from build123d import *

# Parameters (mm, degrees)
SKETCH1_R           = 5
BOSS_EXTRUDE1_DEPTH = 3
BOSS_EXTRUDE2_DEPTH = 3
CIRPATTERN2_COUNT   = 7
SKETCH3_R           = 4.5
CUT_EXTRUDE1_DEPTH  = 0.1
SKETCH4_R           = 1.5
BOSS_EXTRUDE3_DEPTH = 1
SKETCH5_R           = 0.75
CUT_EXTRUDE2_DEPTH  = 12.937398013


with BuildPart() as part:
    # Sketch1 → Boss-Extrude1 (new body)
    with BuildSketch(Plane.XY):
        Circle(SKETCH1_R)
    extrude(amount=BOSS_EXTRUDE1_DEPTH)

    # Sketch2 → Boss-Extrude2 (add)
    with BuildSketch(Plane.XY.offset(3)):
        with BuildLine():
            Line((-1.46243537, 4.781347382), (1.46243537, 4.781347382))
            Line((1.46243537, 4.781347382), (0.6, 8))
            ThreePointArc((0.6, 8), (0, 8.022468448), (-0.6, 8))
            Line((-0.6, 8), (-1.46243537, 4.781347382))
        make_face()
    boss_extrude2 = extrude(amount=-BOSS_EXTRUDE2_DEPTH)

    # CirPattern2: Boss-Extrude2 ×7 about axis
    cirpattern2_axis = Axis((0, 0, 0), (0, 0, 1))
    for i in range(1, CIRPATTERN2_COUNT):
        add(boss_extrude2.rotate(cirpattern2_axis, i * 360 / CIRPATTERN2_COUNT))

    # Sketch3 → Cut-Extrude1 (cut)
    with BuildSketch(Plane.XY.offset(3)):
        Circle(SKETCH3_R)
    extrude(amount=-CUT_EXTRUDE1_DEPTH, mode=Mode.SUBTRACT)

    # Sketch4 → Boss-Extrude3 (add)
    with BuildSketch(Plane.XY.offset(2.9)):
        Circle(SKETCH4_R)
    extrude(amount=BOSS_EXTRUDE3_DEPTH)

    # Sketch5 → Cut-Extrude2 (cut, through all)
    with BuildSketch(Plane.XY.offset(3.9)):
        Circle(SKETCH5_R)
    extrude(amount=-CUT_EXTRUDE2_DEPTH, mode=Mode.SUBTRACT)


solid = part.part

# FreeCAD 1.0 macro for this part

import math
import FreeCAD as App
import Part
import Sketcher
from FreeCAD import Vector
Q = App.Units.Quantity

doc = App.newDocument("Part")
params = doc.addObject("Spreadsheet::Sheet", "Params")
for row, (alias, value) in enumerate([
    ("sketch1_diameter", "10 mm"),
    ("pad1_length", "3 mm"),
    ("pad2_length", "3 mm"),
    ("sketch3_diameter", "9 mm"),
    ("pocket1_length", "0.1 mm"),
    ("sketch4_diameter", "3 mm"),
    ("pad3_length", "1 mm"),
    ("sketch5_diameter", "1.5 mm"),
], start=1):
    params.set(f"A{row}", alias)
    params.set(f"B{row}", "=" + value)
    params.setAlias(f"B{row}", alias)

body = doc.addObject("PartDesign::Body", "Body")

sketch1 = doc.addObject("Sketcher::SketchObject", "Sketch")
body.addObject(sketch1)
sketch1.AttachmentSupport = (doc.XY_Plane, [""])
sketch1.MapMode = "FlatFace"
sketch1.addGeometry(Part.Circle(Vector(0, 0, 0), Vector(0, 0, 1), 5), False)
sketch1.addConstraint(Sketcher.Constraint("Coincident", 0, 3, -1, 1))
sketch1.addConstraint(Sketcher.Constraint("Diameter", 0, 10.0))
sketch1.setExpression("Constraints[1]", "Params.sketch1_diameter")
pad1 = doc.addObject("PartDesign::Pad", "Pad")
body.addObject(pad1)
pad1.Profile = sketch1
pad1.setExpression("Length", "Params.pad1_length")

sketch2 = doc.addObject("Sketcher::SketchObject", "Sketch001")
body.addObject(sketch2)
sketch2.AttachmentSupport = (doc.XY_Plane, [""])
sketch2.MapMode = "FlatFace"
sketch2.AttachmentOffset = App.Placement(Vector(0, 0, 3), App.Rotation())
sketch2.addGeometry(Part.LineSegment(Vector(-1.5, 4.8, 0), Vector(1.5, 4.8, 0)), False)
sketch2.addGeometry(Part.LineSegment(Vector(1.5, 4.8, 0), Vector(0.6, 8, 0)), False)
sketch2.addGeometry(Part.ArcOfCircle(Part.Circle(Vector(0, 0, 0), Vector(0, 0, 1), 8), math.radians(85.71), math.radians(94.29)), False)
sketch2.addGeometry(Part.LineSegment(Vector(-0.6, 8, 0), Vector(-1.5, 4.8, 0)), False)
sketch2.addConstraint(Sketcher.Constraint("Coincident", 0, 2, 1, 1))
sketch2.addConstraint(Sketcher.Constraint("Coincident", 1, 2, 2, 1))
sketch2.addConstraint(Sketcher.Constraint("Coincident", 2, 2, 3, 1))
sketch2.addConstraint(Sketcher.Constraint("Coincident", 3, 2, 0, 1))
sketch2.addConstraint(Sketcher.Constraint("Horizontal", 0))
sketch2.addConstraint(Sketcher.Constraint("Coincident", 2, 3, -1, 1))
sketch2.addConstraint(Sketcher.Constraint("Horizontal", 1, 2, 2, 2))
sketch2.addConstraint(Sketcher.Constraint("Equal", 1, 3))
sketch2.addConstraint(Sketcher.Constraint("Angle", 1, Q("105 deg")))
sketch2.addConstraint(Sketcher.Constraint("DistanceY", -1, 1, 1, 2, 8.0))
sketch2.addConstraint(Sketcher.Constraint("DistanceX", -1, 1, 1, 2, 0.6))
sketch2.addConstraint(Sketcher.Constraint("DistanceX", 0, 1, 0, 2, 2.924871))
pad2 = doc.addObject("PartDesign::Pad", "Pad001")
body.addObject(pad2)
pad2.Profile = sketch2
pad2.setExpression("Length", "Params.pad2_length")
pad2.Reversed = True
doc.recompute()

polarpattern = doc.addObject("PartDesign::PolarPattern", "PolarPattern")
body.addObject(polarpattern)
polarpattern.Originals = [pad2]
polarpattern.Axis = (doc.Z_Axis, [""])
polarpattern.Angle = 360
polarpattern.Occurrences = 7
body.Tip = polarpattern

sketch3 = doc.addObject("Sketcher::SketchObject", "Sketch002")
body.addObject(sketch3)
sketch3.AttachmentSupport = (doc.XY_Plane, [""])
sketch3.MapMode = "FlatFace"
sketch3.AttachmentOffset = App.Placement(Vector(0, 0, 3), App.Rotation())
sketch3.addGeometry(Part.Circle(Vector(0, 0, 0), Vector(0, 0, 1), 4.5), False)
sketch3.addConstraint(Sketcher.Constraint("Coincident", 0, 3, -1, 1))
sketch3.addConstraint(Sketcher.Constraint("Diameter", 0, 9.0))
sketch3.setExpression("Constraints[1]", "Params.sketch3_diameter")
pocket1 = doc.addObject("PartDesign::Pocket", "Pocket")
body.addObject(pocket1)
pocket1.Profile = sketch3
pocket1.setExpression("Length", "Params.pocket1_length")

sketch4 = doc.addObject("Sketcher::SketchObject", "Sketch003")
body.addObject(sketch4)
sketch4.AttachmentSupport = (doc.XY_Plane, [""])
sketch4.MapMode = "FlatFace"
sketch4.AttachmentOffset = App.Placement(Vector(0, 0, 2.9), App.Rotation())
sketch4.addGeometry(Part.Circle(Vector(0, 0, 0), Vector(0, 0, 1), 1.5), False)
sketch4.addConstraint(Sketcher.Constraint("Coincident", 0, 3, -1, 1))
sketch4.addConstraint(Sketcher.Constraint("Diameter", 0, 3.0))
sketch4.setExpression("Constraints[1]", "Params.sketch4_diameter")
pad3 = doc.addObject("PartDesign::Pad", "Pad002")
body.addObject(pad3)
pad3.Profile = sketch4
pad3.setExpression("Length", "Params.pad3_length")

sketch5 = doc.addObject("Sketcher::SketchObject", "Sketch004")
body.addObject(sketch5)
sketch5.AttachmentSupport = (doc.XY_Plane, [""])
sketch5.MapMode = "FlatFace"
sketch5.AttachmentOffset = App.Placement(Vector(0, 0, 3.9), App.Rotation())
sketch5.addGeometry(Part.Circle(Vector(0, 0, 0), Vector(0, 0, 1), 0.8), False)
sketch5.addConstraint(Sketcher.Constraint("Coincident", 0, 3, -1, 1))
sketch5.addConstraint(Sketcher.Constraint("Diameter", 0, 1.5))
sketch5.setExpression("Constraints[1]", "Params.sketch5_diameter")
pocket2 = doc.addObject("PartDesign::Pocket", "Pocket001")
body.addObject(pocket2)
pocket2.Profile = sketch5
pocket2.Type = "ThroughAll"

doc.recompute()
